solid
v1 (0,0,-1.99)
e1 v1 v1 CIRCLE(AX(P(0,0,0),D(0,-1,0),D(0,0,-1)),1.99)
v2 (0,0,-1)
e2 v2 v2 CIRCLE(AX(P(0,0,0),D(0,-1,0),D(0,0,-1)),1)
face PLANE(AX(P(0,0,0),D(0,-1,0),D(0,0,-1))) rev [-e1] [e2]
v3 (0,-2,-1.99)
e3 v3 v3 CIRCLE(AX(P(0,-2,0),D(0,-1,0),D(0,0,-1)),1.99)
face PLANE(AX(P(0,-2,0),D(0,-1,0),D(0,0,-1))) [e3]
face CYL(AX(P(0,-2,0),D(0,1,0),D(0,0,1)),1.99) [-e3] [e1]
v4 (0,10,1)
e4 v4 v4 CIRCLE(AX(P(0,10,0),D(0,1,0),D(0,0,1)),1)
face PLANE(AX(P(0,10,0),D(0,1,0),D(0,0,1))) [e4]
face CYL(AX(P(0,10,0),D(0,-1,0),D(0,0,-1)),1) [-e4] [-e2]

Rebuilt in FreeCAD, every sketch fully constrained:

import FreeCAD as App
import Part
import Sketcher

V = App.Vector

doc = App.newDocument("Part")
body = doc.addObject("PartDesign::Body", "Body")

sketch1 = doc.addObject("Sketcher::SketchObject", "Sketch")
body.addObject(sketch1)
sketch1.AttachmentSupport = (doc.XZ_Plane, [""])
sketch1.MapMode = "FlatFace"
sketch1.addGeometry(Part.Circle(V(0, 0, 0), V(0, 0, 1), 1), False)
sketch1.addConstraint(Sketcher.Constraint("Coincident", 0, 3, -1, 1))
sketch1.addConstraint(Sketcher.Constraint("Diameter", 0, 2.0))
pad1 = doc.addObject("PartDesign::Pad", "Pad")
body.addObject(pad1)
pad1.Profile = sketch1
pad1.Length = 10
pad1.Reversed = True

sketch2 = doc.addObject("Sketcher::SketchObject", "Sketch001")
body.addObject(sketch2)
sketch2.AttachmentSupport = (doc.XZ_Plane, [""])
sketch2.MapMode = "FlatFace"
sketch2.addGeometry(Part.Circle(V(0, 0, 0), V(0, 0, 1), 2), False)
sketch2.addConstraint(Sketcher.Constraint("Coincident", 0, 3, -1, 1))
sketch2.addConstraint(Sketcher.Constraint("Diameter", 0, 3.98))
pad2 = doc.addObject("PartDesign::Pad", "Pad001")
body.addObject(pad2)
pad2.Profile = sketch2
pad2.Length = 2

doc.recompute()
